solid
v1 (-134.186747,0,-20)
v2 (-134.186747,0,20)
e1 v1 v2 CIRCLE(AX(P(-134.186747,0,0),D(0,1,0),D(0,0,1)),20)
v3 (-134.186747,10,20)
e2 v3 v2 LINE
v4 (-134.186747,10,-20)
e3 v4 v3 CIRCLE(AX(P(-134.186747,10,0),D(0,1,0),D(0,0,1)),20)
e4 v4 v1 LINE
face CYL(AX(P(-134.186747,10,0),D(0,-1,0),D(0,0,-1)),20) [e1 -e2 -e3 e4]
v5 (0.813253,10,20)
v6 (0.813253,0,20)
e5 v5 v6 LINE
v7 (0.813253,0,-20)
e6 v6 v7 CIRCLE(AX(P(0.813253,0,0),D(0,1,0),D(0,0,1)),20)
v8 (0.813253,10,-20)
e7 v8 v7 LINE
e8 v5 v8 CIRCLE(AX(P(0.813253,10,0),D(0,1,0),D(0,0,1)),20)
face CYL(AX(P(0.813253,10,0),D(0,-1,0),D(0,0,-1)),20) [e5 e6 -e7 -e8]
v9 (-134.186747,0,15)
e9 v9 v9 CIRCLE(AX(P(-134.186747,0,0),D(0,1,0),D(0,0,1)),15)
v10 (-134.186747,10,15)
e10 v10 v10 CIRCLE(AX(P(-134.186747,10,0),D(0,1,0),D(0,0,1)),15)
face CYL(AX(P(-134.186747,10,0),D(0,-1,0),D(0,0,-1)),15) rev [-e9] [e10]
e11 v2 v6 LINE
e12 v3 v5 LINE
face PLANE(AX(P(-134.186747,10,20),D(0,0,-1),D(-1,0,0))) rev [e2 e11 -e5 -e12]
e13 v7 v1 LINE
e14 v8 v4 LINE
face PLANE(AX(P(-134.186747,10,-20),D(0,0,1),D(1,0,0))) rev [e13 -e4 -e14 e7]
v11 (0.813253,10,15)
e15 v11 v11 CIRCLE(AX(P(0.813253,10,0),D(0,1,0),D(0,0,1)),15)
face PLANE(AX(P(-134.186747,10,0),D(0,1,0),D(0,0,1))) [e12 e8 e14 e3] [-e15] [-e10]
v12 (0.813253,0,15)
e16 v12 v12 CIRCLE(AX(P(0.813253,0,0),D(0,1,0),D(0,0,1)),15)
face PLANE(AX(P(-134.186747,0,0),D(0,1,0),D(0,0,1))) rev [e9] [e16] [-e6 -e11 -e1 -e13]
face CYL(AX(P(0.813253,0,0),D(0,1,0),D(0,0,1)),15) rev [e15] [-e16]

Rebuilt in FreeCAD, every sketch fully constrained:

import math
import FreeCAD as App
import Part
import Sketcher
from FreeCAD import Vector
Q = App.Units.Quantity

doc = App.newDocument("Part")
body = doc.addObject("PartDesign::Body", "Body")

# Sketch on XZ plane
sketch1 = doc.addObject("Sketcher::SketchObject", "Sketch")
body.addObject(sketch1)
sketch1.AttachmentSupport = (doc.XZ_Plane, [""])
sketch1.MapMode = "FlatFace"
sketch1.addGeometry(Part.LineSegment(Vector(1, -20, 0), Vector(-134, -20, 0)), False)
sketch1.addGeometry(Part.ArcOfCircle(Part.Circle(Vector(-134, 0, 0), Vector(0, 0, 1), 20), math.radians(90), math.radians(270)), False)
sketch1.addGeometry(Part.LineSegment(Vector(-134, 20, 0), Vector(1, 20, 0)), False)
sketch1.addGeometry(Part.ArcOfCircle(Part.Circle(Vector(1, 0, 0), Vector(0, 0, 1), 20), math.radians(-90), math.radians(90)), False)
sketch1.addGeometry(Part.Circle(Vector(-134, 0, 0), Vector(0, 0, 1), 15), False)
sketch1.addConstraint(Sketcher.Constraint("Tangent", 0, 2, 1, 2))
sketch1.addConstraint(Sketcher.Constraint("Tangent", 1, 1, 2, 1))
sketch1.addConstraint(Sketcher.Constraint("Tangent", 2, 2, 3, 2))
sketch1.addConstraint(Sketcher.Constraint("Tangent", 3, 1, 0, 1))
sketch1.addConstraint(Sketcher.Constraint("Horizontal", 0))
sketch1.addConstraint(Sketcher.Constraint("Horizontal", 2))
sketch1.addConstraint(Sketcher.Constraint("Coincident", 4, 3, 1, 3))
sketch1.addConstraint(Sketcher.Constraint("PointOnObject", 1, 3, -1))
sketch1.addConstraint(Sketcher.Constraint("Diameter", 4, Q("30 mm")))
sketch1.addConstraint(Sketcher.Constraint("Radius", 1, Q("20 mm")))
sketch1.addConstraint(Sketcher.Constraint("DistanceX", 0, 2, 0, 1, Q("135 mm")))
sketch1.addConstraint(Sketcher.Constraint("DistanceX", 1, 3, -1, 1, Q("134.186747 mm")))
pad1 = doc.addObject("PartDesign::Pad", "Pad")
body.addObject(pad1)
pad1.Profile = sketch1
pad1.Length = 10
pad1.Reversed = True

# Sketch on XZ plane
sketch2 = doc.addObject("Sketcher::SketchObject", "Sketch001")
body.addObject(sketch2)
sketch2.AttachmentSupport = (doc.XZ_Plane, [""])
sketch2.MapMode = "FlatFace"
sketch2.AttachmentOffset = App.Placement(Vector(0, 0, -10), App.Rotation())
sketch2.addGeometry(Part.Circle(Vector(1, 0, 0), Vector(0, 0, 1), 15), False)
sketch2.addConstraint(Sketcher.Constraint("PointOnObject", 0, 3, -1))
sketch2.addConstraint(Sketcher.Constraint("Diameter", 0, Q("30 mm")))
sketch2.addConstraint(Sketcher.Constraint("DistanceX", -1, 1, 0, 3, Q("0.813253 mm")))
pocket1 = doc.addObject("PartDesign::Pocket", "Pocket")
body.addObject(pocket1)
pocket1.Profile = sketch2
pocket1.Length = 10
pocket1.Reversed = True

doc.recompute()
